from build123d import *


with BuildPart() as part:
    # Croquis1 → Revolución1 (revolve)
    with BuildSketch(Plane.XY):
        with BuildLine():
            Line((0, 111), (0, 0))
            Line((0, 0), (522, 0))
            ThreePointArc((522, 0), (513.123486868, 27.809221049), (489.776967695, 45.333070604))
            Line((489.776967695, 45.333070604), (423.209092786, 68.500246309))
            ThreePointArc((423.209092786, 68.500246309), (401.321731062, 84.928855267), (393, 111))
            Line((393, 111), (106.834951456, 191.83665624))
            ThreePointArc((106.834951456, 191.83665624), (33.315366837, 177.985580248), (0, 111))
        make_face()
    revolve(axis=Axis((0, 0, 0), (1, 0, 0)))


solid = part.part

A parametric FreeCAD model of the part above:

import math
import FreeCAD as App
import Part
import Sketcher
Q = App.Units.Quantity

doc = App.newDocument("Part")
body = doc.addObject("PartDesign::Body", "Body")

# Sketch on XY plane
sketch1 = doc.addObject("Sketcher::SketchObject", "Sketch")
body.addObject(sketch1)
sketch1.AttachmentSupport = (doc.XY_Plane, [""])
sketch1.MapMode = "FlatFace"
sketch1.addGeometry([
    Part.LineSegment(App.Vector(0, 111, 0), App.Vector(0, 0, 0)),  # 0
    Part.LineSegment(App.Vector(0, 0, 0), App.Vector(522, 0, 0)),  # 1
    Part.ArcOfCircle(Part.Circle(App.Vector(474, 0, 0), App.Vector(0, 0, 1), 48), math.radians(0), math.radians(70.810909)),  # 2
    Part.LineSegment(App.Vector(489.776968, 45.333071, 0), App.Vector(423.209093, 68.500246, 0)),  # 3
    Part.ArcOfCircle(Part.Circle(App.Vector(438, 111, 0), App.Vector(0, 0, 1), 45), math.radians(-180), math.radians(-109.189091)),  # 4
    Part.LineSegment(App.Vector(393, 111, 0), App.Vector(106.834951, 191.836656, 0)),  # 5
    Part.ArcOfCircle(Part.Circle(App.Vector(84, 111, 0), App.Vector(0, 0, 1), 84), math.radians(74.225936), math.radians(180)),  # 6
], False)
sketch1.addConstraint([
    Sketcher.Constraint("Coincident", 0, 2, 1, 1),
    Sketcher.Constraint("Coincident", 1, 2, 2, 1),
    Sketcher.Constraint("Tangent", 2, 2, 3, 1),
    Sketcher.Constraint("Tangent", 3, 2, 4, 2),
    Sketcher.Constraint("Coincident", 4, 1, 5, 1),
    Sketcher.Constraint("Tangent", 5, 2, 6, 1),
    Sketcher.Constraint("Tangent", 6, 2, 0, 1),
    Sketcher.Constraint("Vertical", 0),
    Sketcher.Constraint("Horizontal", 1),
    Sketcher.Constraint("Coincident", 0, 2, -1, 1),
    Sketcher.Constraint("PointOnObject", 2, 3, -1),
    Sketcher.Constraint("Horizontal", 4, 3, 6, 3),
    Sketcher.Constraint("Horizontal", 6, 3, 4, 1),
    Sketcher.Constraint("Radius", 2, Q("48 mm")),
    Sketcher.Constraint("Radius", 4, Q("45 mm")),
    Sketcher.Constraint("Radius", 6, Q("84 mm")),
    Sketcher.Constraint("DistanceX", 1, 1, 1, 2, Q("522 mm")),
    Sketcher.Constraint("DistanceY", 0, 2, 0, 1, Q("111 mm")),
    Sketcher.Constraint("DistanceX", -1, 1, 4, 3, Q("438 mm")),
])
revolution = doc.addObject("PartDesign::Revolution", "Revolution")
body.addObject(revolution)
revolution.Profile = sketch1
revolution.ReferenceAxis = (sketch1, ["H_Axis"])
revolution.Angle = 360

doc.recompute()
